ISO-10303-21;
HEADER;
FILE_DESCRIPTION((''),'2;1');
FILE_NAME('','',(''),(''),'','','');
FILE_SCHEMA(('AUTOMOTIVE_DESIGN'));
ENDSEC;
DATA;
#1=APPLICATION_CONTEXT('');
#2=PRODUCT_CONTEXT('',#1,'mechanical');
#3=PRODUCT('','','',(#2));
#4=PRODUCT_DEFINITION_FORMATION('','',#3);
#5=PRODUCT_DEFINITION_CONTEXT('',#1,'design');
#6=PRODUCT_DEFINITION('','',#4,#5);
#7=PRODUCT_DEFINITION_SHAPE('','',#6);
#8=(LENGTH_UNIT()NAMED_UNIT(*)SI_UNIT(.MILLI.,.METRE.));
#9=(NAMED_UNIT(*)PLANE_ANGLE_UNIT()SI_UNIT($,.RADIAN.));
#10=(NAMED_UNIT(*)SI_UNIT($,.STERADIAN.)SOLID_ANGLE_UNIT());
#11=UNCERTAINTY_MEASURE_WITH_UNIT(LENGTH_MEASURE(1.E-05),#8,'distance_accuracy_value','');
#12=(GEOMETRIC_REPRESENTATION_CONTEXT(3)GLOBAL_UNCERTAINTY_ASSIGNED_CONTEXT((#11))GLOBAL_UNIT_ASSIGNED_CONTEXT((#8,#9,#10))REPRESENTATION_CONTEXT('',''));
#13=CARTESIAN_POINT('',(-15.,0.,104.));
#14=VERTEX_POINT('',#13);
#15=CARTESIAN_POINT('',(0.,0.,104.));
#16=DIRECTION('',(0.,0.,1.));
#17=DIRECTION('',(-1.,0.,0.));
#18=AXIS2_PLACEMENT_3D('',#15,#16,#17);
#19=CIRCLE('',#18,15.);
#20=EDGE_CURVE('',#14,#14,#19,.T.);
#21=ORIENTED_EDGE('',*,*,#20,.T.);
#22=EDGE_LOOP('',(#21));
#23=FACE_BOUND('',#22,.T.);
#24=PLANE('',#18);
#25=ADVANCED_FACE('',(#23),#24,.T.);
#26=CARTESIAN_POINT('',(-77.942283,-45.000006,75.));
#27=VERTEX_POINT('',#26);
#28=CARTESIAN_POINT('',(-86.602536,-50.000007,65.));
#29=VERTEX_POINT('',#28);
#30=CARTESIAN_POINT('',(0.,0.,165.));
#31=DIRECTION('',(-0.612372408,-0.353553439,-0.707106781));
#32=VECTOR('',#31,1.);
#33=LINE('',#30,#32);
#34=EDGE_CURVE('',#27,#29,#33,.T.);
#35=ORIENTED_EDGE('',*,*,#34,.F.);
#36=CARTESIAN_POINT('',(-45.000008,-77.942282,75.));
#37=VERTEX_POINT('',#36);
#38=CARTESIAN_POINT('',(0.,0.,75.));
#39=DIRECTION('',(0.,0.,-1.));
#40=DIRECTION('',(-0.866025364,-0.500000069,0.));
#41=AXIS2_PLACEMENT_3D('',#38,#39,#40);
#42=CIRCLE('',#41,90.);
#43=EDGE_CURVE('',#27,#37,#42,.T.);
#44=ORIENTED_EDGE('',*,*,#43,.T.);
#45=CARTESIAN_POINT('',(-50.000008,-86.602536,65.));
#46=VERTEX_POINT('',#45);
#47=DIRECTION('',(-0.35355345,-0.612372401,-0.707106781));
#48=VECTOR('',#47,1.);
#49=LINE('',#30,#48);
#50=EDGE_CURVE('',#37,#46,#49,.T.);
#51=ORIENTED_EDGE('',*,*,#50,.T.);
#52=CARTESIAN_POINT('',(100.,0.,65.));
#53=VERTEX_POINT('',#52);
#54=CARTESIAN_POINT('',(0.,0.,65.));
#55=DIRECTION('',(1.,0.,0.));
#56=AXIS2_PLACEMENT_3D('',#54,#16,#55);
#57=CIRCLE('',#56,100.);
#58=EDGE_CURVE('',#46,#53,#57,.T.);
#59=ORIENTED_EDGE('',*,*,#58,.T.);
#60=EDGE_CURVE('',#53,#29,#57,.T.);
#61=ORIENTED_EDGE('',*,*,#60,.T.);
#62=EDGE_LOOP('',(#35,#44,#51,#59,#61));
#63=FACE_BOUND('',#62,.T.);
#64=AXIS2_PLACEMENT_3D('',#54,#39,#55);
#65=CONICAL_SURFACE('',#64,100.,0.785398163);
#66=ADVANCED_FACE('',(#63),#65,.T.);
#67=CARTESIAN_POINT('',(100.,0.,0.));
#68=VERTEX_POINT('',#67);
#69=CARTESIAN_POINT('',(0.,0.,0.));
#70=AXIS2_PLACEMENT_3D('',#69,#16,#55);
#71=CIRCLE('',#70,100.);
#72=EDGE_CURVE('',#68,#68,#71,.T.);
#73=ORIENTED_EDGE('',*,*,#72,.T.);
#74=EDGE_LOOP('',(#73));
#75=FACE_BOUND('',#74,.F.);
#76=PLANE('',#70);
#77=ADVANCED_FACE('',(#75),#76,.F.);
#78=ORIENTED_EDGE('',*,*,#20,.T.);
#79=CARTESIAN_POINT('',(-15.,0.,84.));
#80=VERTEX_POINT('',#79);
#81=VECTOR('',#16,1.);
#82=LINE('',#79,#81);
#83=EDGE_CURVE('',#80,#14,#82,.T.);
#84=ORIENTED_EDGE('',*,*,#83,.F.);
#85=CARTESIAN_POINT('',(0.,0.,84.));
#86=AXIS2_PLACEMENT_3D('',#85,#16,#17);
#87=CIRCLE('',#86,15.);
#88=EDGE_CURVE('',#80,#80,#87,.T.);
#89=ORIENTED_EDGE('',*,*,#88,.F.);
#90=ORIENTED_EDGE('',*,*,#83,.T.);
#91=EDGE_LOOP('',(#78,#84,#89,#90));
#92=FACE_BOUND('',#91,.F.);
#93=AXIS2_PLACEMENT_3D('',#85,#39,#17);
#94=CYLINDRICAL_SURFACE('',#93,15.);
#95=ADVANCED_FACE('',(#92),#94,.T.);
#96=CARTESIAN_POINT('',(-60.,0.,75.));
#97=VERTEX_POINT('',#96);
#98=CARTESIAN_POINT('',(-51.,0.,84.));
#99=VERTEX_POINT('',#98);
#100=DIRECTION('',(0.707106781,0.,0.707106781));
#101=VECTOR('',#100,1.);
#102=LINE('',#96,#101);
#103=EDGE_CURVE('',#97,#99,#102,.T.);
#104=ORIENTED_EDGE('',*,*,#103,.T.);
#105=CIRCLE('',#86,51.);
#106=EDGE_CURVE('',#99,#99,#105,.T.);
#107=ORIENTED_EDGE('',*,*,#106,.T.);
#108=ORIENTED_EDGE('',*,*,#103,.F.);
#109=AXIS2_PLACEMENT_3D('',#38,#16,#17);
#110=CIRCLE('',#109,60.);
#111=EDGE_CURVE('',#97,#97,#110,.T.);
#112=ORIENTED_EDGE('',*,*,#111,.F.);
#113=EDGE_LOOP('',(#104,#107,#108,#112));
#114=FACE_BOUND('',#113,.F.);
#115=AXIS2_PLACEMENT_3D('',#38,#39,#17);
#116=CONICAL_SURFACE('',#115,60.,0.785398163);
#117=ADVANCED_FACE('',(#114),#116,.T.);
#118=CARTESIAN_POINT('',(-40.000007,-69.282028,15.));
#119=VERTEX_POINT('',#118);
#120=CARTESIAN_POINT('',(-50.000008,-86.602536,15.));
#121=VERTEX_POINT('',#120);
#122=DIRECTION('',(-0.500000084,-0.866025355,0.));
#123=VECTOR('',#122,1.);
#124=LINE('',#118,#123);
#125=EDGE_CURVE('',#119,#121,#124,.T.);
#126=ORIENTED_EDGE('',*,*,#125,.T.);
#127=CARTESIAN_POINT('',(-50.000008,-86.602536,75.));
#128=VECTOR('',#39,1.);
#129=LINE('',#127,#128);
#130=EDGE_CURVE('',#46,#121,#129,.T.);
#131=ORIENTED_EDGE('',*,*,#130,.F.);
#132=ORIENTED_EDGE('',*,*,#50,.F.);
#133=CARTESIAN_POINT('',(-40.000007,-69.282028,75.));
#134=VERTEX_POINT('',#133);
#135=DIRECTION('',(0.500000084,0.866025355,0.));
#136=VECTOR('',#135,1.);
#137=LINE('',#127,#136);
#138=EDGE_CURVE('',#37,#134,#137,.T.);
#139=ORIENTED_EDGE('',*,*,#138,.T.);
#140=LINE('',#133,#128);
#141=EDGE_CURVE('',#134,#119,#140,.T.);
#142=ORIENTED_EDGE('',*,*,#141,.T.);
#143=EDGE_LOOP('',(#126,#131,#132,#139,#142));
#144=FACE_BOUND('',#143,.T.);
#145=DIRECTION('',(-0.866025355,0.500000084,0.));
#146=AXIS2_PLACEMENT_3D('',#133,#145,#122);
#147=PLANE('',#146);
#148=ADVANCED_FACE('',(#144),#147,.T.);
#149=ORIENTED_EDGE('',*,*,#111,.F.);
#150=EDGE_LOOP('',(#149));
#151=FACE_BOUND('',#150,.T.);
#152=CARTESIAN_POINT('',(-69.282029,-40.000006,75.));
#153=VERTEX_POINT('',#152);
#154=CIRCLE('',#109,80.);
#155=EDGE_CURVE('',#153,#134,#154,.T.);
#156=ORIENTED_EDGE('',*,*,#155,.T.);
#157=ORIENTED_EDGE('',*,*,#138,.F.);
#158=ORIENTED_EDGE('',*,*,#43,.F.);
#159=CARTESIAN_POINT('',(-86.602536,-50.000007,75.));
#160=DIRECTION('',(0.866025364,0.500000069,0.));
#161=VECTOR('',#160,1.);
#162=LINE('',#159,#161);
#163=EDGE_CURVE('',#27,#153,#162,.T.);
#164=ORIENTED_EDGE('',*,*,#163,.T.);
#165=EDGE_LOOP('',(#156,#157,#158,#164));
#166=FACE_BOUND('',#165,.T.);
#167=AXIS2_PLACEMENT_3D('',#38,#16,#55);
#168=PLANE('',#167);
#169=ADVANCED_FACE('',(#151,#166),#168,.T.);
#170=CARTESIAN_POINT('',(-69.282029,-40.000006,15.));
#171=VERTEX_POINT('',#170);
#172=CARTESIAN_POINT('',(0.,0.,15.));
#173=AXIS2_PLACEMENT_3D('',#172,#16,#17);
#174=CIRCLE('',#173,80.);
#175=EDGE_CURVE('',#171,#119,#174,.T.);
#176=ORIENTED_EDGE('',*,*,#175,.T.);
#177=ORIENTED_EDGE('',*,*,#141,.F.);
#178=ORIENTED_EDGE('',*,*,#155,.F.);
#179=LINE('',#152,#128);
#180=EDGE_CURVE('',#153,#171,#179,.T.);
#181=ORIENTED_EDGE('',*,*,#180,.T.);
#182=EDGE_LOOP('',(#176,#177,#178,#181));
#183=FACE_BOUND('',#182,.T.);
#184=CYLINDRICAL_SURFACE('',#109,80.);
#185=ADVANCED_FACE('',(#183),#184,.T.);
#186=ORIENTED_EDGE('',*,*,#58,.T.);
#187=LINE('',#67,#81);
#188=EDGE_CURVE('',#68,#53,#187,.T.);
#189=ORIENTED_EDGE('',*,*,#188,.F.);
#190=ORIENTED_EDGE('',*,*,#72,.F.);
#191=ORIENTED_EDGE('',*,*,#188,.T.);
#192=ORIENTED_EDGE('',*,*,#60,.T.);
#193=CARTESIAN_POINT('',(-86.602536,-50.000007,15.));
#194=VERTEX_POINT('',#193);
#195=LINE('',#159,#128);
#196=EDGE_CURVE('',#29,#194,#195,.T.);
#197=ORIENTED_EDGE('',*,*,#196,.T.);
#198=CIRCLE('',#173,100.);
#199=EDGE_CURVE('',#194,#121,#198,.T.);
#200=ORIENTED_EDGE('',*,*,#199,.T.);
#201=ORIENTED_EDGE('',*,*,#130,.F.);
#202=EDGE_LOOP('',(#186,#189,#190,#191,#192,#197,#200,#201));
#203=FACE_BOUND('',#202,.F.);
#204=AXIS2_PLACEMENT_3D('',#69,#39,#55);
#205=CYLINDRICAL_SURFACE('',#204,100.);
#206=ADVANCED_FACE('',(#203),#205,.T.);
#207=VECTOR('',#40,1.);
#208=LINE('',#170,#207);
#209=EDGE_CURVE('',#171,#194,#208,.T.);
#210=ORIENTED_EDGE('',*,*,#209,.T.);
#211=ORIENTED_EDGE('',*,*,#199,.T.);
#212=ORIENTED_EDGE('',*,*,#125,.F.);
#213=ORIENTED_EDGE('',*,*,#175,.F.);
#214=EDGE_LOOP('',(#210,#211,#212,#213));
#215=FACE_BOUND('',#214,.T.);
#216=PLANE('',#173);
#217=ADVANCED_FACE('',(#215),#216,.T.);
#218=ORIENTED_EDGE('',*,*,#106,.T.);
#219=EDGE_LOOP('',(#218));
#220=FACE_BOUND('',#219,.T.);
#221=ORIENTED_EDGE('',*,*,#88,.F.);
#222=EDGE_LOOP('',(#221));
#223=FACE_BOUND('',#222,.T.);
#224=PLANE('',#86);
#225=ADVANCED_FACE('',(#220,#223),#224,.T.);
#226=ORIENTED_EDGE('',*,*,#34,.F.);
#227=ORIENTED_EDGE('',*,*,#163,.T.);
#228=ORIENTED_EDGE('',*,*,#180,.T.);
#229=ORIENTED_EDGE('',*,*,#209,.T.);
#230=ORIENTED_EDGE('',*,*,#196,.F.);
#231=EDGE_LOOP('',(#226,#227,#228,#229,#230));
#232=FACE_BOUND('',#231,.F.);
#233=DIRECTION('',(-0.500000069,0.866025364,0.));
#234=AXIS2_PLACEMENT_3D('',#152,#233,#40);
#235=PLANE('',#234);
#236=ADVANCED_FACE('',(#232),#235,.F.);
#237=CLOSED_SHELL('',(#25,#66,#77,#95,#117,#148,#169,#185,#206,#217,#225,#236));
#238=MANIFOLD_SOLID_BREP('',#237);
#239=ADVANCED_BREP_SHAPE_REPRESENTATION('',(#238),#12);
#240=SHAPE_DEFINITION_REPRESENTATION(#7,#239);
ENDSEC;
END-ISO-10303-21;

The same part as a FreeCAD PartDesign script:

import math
import FreeCAD as App
import Part
import Sketcher
from FreeCAD import Vector
Q = App.Units.Quantity


def edges_at(feature, points):
    """Names of the edges that pass closest to the given points."""
    edges = feature.Shape.Edges
    near = lambda p: min(range(len(edges)), key=lambda i: edges[i].distToShape(Part.Vertex(*p))[0])
    return sorted({f"Edge{near(p) + 1}" for p in points})

doc = App.newDocument("Part")
params = doc.addObject("Spreadsheet::Sheet", "Params")
for row, (alias, value) in enumerate([
    ("sketch1_diameter", "200 mm"),
    ("pad1_length", "75 mm"),
    ("chamfer_size", "10 mm"),
    ("sketch2_radius", "80 mm"),
    ("sketch2_radius2", "100 mm"),
    ("pocket1_length", "60 mm"),
    ("sketch3_diameter", "120 mm"),
    ("pad2_length", "9 mm"),
    ("pad2_taper", "-45 deg"),
    ("sketch4_diameter", "30 mm"),
    ("pad3_length", "20 mm"),
], start=1):
    params.set(f"A{row}", alias)
    params.set(f"B{row}", "=" + value)
    params.setAlias(f"B{row}", alias)

body = doc.addObject("PartDesign::Body", "Body")

# Sketch on XY plane
sketch1 = body.newObject("Sketcher::SketchObject", "Sketch")
sketch1.AttachmentSupport = (doc.getObject("XY_Plane"), [""])
sketch1.MapMode = "FlatFace"
sketch1.addGeometry(Part.Circle(Vector(0, 0, 0), Vector(0, 0, 1), 100), False)
sketch1.addConstraint([
    Sketcher.Constraint("Coincident", 0, 3, -1, 1),
    Sketcher.Constraint("Diameter", 0, Q("200 mm")),
])
sketch1.setExpression("Constraints[1]", "Params.sketch1_diameter")
pad1 = body.newObject("PartDesign::Pad", "Pad")
pad1.Profile = sketch1
pad1.setExpression("Length", "Params.pad1_length")
doc.recompute()

chamfer = body.newObject("PartDesign::Chamfer", "Chamfer")
chamfer.Base = (pad1, edges_at(pad1, [(-93.233, -36.161, 75)]))
chamfer.setExpression("Size", "Params.chamfer_size")

# Sketch on XY plane
sketch2 = body.newObject("Sketcher::SketchObject", "Sketch001")
sketch2.AttachmentSupport = (doc.getObject("XY_Plane"), [""])
sketch2.MapMode = "FlatFace"
sketch2.AttachmentOffset = App.Placement(Vector(0, 0, 75), App.Rotation())
sketch2.addGeometry([
    Part.LineSegment(Vector(-69, -40, 0), Vector(-87, -50, 0)),
    Part.ArcOfCircle(Part.Circle(Vector(0, 0, 0), Vector(0, 0, 1), 100), math.radians(-150), math.radians(-120)),
    Part.LineSegment(Vector(-50, -87, 0), Vector(-40, -69, 0)),
    Part.ArcOfCircle(Part.Circle(Vector(0, 0, 0), Vector(0, 0, 1), 80), math.radians(-150), math.radians(-120)),
], False)
sketch2.addConstraint([
    Sketcher.Constraint("Coincident", 0, 2, 1, 1),
    Sketcher.Constraint("Coincident", 1, 2, 2, 1),
    Sketcher.Constraint("Coincident", 2, 2, 3, 2),
    Sketcher.Constraint("Coincident", 3, 1, 0, 1),
    Sketcher.Constraint("Coincident", 1, 3, -1, 1),
    Sketcher.Constraint("Coincident", 3, 3, -1, 1),
    Sketcher.Constraint("Radius", 3, Q("80 mm")),
    Sketcher.Constraint("Angle", 2, Q("60 deg")),
    Sketcher.Constraint("Radius", 1, Q("100 mm")),
    Sketcher.Constraint("Angle", 0, Q("-150 deg")),
    Sketcher.Constraint("DistanceY", 0, 2, -1, 1, Q("50 mm")),
    Sketcher.Constraint("DistanceX", 1, 2, -1, 1, Q("50 mm")),
])
sketch2.setExpression("Constraints[6]", "Params.sketch2_radius")
sketch2.setExpression("Constraints[8]", "Params.sketch2_radius2")
pocket1 = body.newObject("PartDesign::Pocket", "Pocket")
pocket1.Profile = sketch2
pocket1.setExpression("Length", "Params.pocket1_length")

# Sketch on XY plane
sketch3 = body.newObject("Sketcher::SketchObject", "Sketch002")
sketch3.AttachmentSupport = (doc.getObject("XY_Plane"), [""])
sketch3.MapMode = "FlatFace"
sketch3.AttachmentOffset = App.Placement(Vector(0, 0, 75), App.Rotation())
sketch3.addGeometry(Part.Circle(Vector(0, 0, 0), Vector(0, 0, 1), 60), False)
sketch3.addConstraint([
    Sketcher.Constraint("Coincident", 0, 3, -1, 1),
    Sketcher.Constraint("Diameter", 0, Q("120 mm")),
])
sketch3.setExpression("Constraints[1]", "Params.sketch3_diameter")
pad2 = body.newObject("PartDesign::Pad", "Pad001")
pad2.Profile = sketch3
pad2.setExpression("Length", "Params.pad2_length")
pad2.setExpression("TaperAngle", "Params.pad2_taper")

# Sketch on XY plane
sketch4 = body.newObject("Sketcher::SketchObject", "Sketch003")
sketch4.AttachmentSupport = (doc.getObject("XY_Plane"), [""])
sketch4.MapMode = "FlatFace"
sketch4.AttachmentOffset = App.Placement(Vector(0, 0, 84), App.Rotation())
sketch4.addGeometry(Part.Circle(Vector(0, 0, 0), Vector(0, 0, 1), 15), False)
sketch4.addConstraint([
    Sketcher.Constraint("Coincident", 0, 3, -1, 1),
    Sketcher.Constraint("Diameter", 0, Q("30 mm")),
])
sketch4.setExpression("Constraints[1]", "Params.sketch4_diameter")
pad3 = body.newObject("PartDesign::Pad", "Pad002")
pad3.Profile = sketch4
pad3.setExpression("Length", "Params.pad3_length")

doc.recompute()
